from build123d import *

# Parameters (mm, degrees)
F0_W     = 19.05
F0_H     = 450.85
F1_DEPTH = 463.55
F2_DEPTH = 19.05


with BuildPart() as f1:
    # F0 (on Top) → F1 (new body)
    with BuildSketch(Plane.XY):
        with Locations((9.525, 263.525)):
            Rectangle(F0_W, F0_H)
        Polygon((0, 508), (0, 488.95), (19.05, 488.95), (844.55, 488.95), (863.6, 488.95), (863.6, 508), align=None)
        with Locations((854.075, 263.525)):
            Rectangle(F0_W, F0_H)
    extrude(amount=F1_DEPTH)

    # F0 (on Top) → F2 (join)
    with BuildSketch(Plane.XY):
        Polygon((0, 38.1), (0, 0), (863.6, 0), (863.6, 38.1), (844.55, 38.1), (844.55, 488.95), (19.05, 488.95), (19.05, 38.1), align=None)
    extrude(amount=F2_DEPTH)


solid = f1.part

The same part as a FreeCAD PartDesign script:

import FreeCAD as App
import Part
import Sketcher

V = App.Vector
Q = App.Units.Quantity

doc = App.newDocument("Part")
body = doc.addObject("PartDesign::Body", "Body")

# Sketch on XY plane
sketch1 = doc.addObject("Sketcher::SketchObject", "Sketch")
body.addObject(sketch1)
sketch1.AttachmentSupport = (doc.XY_Plane, [""])
sketch1.MapMode = "FlatFace"
sketch1.addGeometry([
    Part.LineSegment(V(0, 38, 0), V(19, 38, 0)),  # 0
    Part.LineSegment(V(19, 38, 0), V(19, 489, 0)),  # 1
    Part.LineSegment(V(19, 489, 0), V(845, 489, 0)),  # 2
    Part.LineSegment(V(845, 489, 0), V(845, 38, 0)),  # 3
    Part.LineSegment(V(845, 38, 0), V(864, 38, 0)),  # 4
    Part.LineSegment(V(864, 38, 0), V(864, 508, 0)),  # 5
    Part.LineSegment(V(864, 508, 0), V(0, 508, 0)),  # 6
    Part.LineSegment(V(0, 508, 0), V(0, 38, 0)),  # 7
], False)
sketch1.addConstraint([
    Sketcher.Constraint("Coincident", 0, 2, 1, 1),
    Sketcher.Constraint("Coincident", 1, 2, 2, 1),
    Sketcher.Constraint("Coincident", 2, 2, 3, 1),
    Sketcher.Constraint("Coincident", 3, 2, 4, 1),
    Sketcher.Constraint("Coincident", 4, 2, 5, 1),
    Sketcher.Constraint("Coincident", 5, 2, 6, 1),
    Sketcher.Constraint("Coincident", 6, 2, 7, 1),
    Sketcher.Constraint("Coincident", 7, 2, 0, 1),
    Sketcher.Constraint("Horizontal", 0),
    Sketcher.Constraint("Vertical", 1),
    Sketcher.Constraint("Horizontal", 2),
    Sketcher.Constraint("Vertical", 3),
    Sketcher.Constraint("Horizontal", 4),
    Sketcher.Constraint("Vertical", 5),
    Sketcher.Constraint("Horizontal", 6),
    Sketcher.Constraint("Vertical", 7),
    Sketcher.Constraint("PointOnObject", 6, 2, -2),
    Sketcher.Constraint("Horizontal", 0, 2, 3, 2),
    Sketcher.Constraint("Equal", 0, 4),
    Sketcher.Constraint("DistanceX", 6, 2, 6, 1, Q("34 in")),
    Sketcher.Constraint("DistanceX", 2, 1, 2, 2, Q("32.5 in")),
    Sketcher.Constraint("DistanceY", 5, 1, 5, 2, Q("18.5 in")),
    Sketcher.Constraint("DistanceY", -1, 1, 5, 2, Q("20 in")),
    Sketcher.Constraint("DistanceY", 1, 1, 1, 2, Q("17.75 in")),
])
pad1 = doc.addObject("PartDesign::Pad", "Pad")
body.addObject(pad1)
pad1.Profile = sketch1
pad1.Length = Q("18.25 in")

# Sketch on XY plane
sketch2 = doc.addObject("Sketcher::SketchObject", "Sketch001")
body.addObject(sketch2)
sketch2.AttachmentSupport = (doc.XY_Plane, [""])
sketch2.MapMode = "FlatFace"
sketch2.addGeometry([
    Part.LineSegment(V(0, 38, 0), V(0, 0, 0)),  # 0
    Part.LineSegment(V(0, 0, 0), V(864, 0, 0)),  # 1
    Part.LineSegment(V(864, 0, 0), V(864, 38, 0)),  # 2
    Part.LineSegment(V(864, 38, 0), V(845, 38, 0)),  # 3
    Part.LineSegment(V(845, 38, 0), V(845, 489, 0)),  # 4
    Part.LineSegment(V(845, 489, 0), V(19, 489, 0)),  # 5
    Part.LineSegment(V(19, 489, 0), V(19, 38, 0)),  # 6
    Part.LineSegment(V(19, 38, 0), V(0, 38, 0)),  # 7
], False)
sketch2.addConstraint([
    Sketcher.Constraint("Coincident", 0, 2, 1, 1),
    Sketcher.Constraint("Coincident", 1, 2, 2, 1),
    Sketcher.Constraint("Coincident", 2, 2, 3, 1),
    Sketcher.Constraint("Coincident", 3, 2, 4, 1),
    Sketcher.Constraint("Coincident", 4, 2, 5, 1),
    Sketcher.Constraint("Coincident", 5, 2, 6, 1),
    Sketcher.Constraint("Coincident", 6, 2, 7, 1),
    Sketcher.Constraint("Coincident", 7, 2, 0, 1),
    Sketcher.Constraint("Vertical", 0),
    Sketcher.Constraint("Horizontal", 1),
    Sketcher.Constraint("Vertical", 2),
    Sketcher.Constraint("Horizontal", 3),
    Sketcher.Constraint("Vertical", 4),
    Sketcher.Constraint("Horizontal", 5),
    Sketcher.Constraint("Vertical", 6),
    Sketcher.Constraint("Horizontal", 7),
    Sketcher.Constraint("Coincident", 0, 2, -1, 1),
    Sketcher.Constraint("Horizontal", 3, 2, 6, 2),
    Sketcher.Constraint("Equal", 3, 7),
    Sketcher.Constraint("DistanceX", 1, 1, 1, 2, Q("34 in")),
    Sketcher.Constraint("DistanceX", 5, 2, 5, 1, Q("32.5 in")),
    Sketcher.Constraint("DistanceY", 0, 2, 0, 1, Q("1.5 in")),
    Sketcher.Constraint("DistanceY", 4, 1, 4, 2, Q("17.75 in")),
])
pad2 = doc.addObject("PartDesign::Pad", "Pad001")
body.addObject(pad2)
pad2.Profile = sketch2
pad2.Length = Q("0.75 in")

doc.recompute()
